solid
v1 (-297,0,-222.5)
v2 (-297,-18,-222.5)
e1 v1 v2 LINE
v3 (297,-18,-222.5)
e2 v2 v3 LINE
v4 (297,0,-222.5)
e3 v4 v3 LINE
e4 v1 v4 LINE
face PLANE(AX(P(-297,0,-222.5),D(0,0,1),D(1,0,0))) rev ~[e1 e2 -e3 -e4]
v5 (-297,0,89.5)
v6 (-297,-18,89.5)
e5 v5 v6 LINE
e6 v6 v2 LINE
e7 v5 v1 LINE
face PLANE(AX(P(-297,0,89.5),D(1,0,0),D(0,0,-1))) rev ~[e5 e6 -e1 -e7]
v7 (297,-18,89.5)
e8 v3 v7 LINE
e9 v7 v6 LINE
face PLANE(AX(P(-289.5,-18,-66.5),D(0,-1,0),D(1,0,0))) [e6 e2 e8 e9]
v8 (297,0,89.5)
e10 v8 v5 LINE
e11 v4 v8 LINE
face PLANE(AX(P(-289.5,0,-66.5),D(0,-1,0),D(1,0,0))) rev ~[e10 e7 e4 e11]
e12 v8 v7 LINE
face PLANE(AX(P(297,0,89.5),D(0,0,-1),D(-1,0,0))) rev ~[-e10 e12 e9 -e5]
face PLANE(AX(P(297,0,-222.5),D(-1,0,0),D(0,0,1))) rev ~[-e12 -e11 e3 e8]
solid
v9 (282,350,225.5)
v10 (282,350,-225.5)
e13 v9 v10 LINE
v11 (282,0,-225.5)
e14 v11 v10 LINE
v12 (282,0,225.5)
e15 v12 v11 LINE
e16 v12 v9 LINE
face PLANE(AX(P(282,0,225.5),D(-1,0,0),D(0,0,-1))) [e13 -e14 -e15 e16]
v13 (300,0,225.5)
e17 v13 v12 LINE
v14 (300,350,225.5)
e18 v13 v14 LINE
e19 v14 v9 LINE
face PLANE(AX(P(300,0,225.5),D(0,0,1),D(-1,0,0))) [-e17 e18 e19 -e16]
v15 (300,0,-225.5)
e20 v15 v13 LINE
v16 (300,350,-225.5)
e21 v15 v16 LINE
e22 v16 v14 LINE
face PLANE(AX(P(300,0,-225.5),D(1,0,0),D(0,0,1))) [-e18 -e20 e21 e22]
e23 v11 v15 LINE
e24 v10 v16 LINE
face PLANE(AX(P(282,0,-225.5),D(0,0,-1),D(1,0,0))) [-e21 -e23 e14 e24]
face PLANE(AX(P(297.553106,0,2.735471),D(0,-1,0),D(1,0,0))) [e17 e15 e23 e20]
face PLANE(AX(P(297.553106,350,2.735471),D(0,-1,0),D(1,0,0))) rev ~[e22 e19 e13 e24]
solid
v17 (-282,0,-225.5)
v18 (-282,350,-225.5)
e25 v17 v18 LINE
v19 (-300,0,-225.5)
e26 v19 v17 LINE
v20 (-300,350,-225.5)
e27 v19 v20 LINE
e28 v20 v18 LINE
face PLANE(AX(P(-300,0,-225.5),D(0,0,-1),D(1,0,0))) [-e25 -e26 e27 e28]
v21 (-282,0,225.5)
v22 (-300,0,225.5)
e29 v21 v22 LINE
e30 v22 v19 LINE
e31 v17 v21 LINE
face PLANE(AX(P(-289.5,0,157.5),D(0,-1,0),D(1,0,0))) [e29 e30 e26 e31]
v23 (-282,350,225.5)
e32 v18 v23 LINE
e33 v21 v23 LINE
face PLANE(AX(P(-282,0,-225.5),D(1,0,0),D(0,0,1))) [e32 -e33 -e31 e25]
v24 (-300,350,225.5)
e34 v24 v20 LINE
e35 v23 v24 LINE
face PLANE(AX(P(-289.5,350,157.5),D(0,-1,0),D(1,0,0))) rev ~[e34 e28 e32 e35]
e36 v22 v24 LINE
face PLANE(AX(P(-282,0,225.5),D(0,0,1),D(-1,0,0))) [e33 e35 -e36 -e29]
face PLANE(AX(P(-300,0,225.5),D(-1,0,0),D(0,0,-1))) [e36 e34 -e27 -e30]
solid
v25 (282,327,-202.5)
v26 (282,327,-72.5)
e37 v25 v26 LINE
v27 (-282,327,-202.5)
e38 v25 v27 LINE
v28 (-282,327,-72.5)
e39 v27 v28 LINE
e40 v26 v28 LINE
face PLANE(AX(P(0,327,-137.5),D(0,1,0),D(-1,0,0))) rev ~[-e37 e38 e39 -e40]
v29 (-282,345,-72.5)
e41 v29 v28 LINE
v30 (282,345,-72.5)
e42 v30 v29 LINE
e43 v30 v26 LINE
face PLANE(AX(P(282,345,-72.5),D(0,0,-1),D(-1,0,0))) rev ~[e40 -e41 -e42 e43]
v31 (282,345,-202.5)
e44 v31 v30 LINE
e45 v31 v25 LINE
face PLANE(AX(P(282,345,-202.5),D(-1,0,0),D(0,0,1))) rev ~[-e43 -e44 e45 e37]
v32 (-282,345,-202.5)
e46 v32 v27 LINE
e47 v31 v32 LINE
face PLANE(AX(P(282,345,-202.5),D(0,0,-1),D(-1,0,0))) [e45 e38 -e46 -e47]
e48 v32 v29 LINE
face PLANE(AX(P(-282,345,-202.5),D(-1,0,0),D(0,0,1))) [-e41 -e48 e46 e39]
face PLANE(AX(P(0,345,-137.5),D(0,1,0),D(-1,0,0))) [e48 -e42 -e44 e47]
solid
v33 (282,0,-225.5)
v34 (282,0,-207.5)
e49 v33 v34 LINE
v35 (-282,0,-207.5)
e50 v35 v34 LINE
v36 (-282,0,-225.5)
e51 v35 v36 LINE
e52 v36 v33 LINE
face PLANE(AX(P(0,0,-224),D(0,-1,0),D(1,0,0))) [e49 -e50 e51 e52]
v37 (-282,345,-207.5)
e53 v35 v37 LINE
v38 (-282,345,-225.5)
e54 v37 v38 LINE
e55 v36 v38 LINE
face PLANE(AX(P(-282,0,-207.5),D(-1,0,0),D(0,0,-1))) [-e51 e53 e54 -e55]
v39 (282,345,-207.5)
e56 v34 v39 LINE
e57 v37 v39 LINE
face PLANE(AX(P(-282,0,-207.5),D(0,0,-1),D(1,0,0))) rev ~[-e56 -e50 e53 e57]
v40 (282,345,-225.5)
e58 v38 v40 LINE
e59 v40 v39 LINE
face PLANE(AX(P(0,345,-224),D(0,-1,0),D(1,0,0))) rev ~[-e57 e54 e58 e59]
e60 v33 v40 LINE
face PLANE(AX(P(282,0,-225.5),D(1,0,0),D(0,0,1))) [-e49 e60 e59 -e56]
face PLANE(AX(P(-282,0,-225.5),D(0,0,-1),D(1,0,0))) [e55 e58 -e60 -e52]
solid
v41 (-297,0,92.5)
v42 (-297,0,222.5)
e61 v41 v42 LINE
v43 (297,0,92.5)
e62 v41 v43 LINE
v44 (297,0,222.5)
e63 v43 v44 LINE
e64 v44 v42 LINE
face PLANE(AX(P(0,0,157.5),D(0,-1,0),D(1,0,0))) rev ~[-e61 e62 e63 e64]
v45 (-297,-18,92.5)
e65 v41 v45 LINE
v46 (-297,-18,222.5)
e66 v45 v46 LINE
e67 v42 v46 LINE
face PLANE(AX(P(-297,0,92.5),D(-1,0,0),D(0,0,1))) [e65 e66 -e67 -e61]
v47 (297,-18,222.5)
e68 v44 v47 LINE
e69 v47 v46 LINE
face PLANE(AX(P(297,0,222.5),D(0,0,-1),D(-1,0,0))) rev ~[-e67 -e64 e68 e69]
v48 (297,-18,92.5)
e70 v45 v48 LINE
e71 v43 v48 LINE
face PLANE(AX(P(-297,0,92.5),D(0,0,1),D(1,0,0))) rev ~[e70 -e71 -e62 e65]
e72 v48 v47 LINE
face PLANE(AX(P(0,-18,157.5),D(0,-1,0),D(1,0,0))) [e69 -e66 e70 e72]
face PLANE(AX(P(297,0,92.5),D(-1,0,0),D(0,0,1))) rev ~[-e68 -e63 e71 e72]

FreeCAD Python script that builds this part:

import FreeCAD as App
import Part
import Sketcher

V = App.Vector
Q = App.Units.Quantity

doc = App.newDocument("Part")
body = doc.addObject("PartDesign::Body", "Body")

# Sketch on XZ plane
sketch1 = body.newObject("Sketcher::SketchObject", "Sketch")
sketch1.AttachmentSupport = (doc.getObject("XZ_Plane"), [""])
sketch1.MapMode = "FlatFace"
sketch1.addGeometry(Part.LineSegment(V(-282, 226, 0), V(-300, 226, 0)), False)
sketch1.addGeometry(Part.LineSegment(V(-300, 226, 0), V(-300, -226, 0)), False)
sketch1.addGeometry(Part.LineSegment(V(-300, -226, 0), V(-282, -226, 0)), False)
sketch1.addGeometry(Part.LineSegment(V(-282, -226, 0), V(-282, 226, 0)), False)
sketch1.addConstraint(Sketcher.Constraint("Coincident", 0, 2, 1, 1))
sketch1.addConstraint(Sketcher.Constraint("Coincident", 1, 2, 2, 1))
sketch1.addConstraint(Sketcher.Constraint("Coincident", 2, 2, 3, 1))
sketch1.addConstraint(Sketcher.Constraint("Coincident", 3, 2, 0, 1))
sketch1.addConstraint(Sketcher.Constraint("Horizontal", 0))
sketch1.addConstraint(Sketcher.Constraint("Vertical", 1))
sketch1.addConstraint(Sketcher.Constraint("Horizontal", 2))
sketch1.addConstraint(Sketcher.Constraint("Vertical", 3))
sketch1.addConstraint(Sketcher.Constraint("DistanceX", 0, 2, 0, 1, Q("18 mm")))
sketch1.addConstraint(Sketcher.Constraint("DistanceY", 1, 2, 1, 1, Q("451 mm")))
sketch1.addConstraint(Sketcher.Constraint("DistanceX", 0, 2, -1, 1, Q("300 mm")))
sketch1.addConstraint(Sketcher.Constraint("DistanceY", -1, 1, 0, 2, Q("225.5 mm")))
pad1 = body.newObject("PartDesign::Pad", "Pad")
pad1.Profile = sketch1
pad1.Length = 350
pad1.Reversed = True
body2 = doc.addObject("PartDesign::Body", "Body001")

# Sketch on XZ plane
sketch2 = body2.newObject("Sketcher::SketchObject", "Sketch001")
sketch2.AttachmentSupport = (doc.getObject("XZ_Plane001"), [""])
sketch2.MapMode = "FlatFace"
sketch2.addGeometry(Part.LineSegment(V(300, -226, 0), V(300, 226, 0)), False)
sketch2.addGeometry(Part.LineSegment(V(300, 226, 0), V(282, 226, 0)), False)
sketch2.addGeometry(Part.LineSegment(V(282, 226, 0), V(282, -226, 0)), False)
sketch2.addGeometry(Part.LineSegment(V(282, -226, 0), V(300, -226, 0)), False)
sketch2.addConstraint(Sketcher.Constraint("Coincident", 0, 2, 1, 1))
sketch2.addConstraint(Sketcher.Constraint("Coincident", 1, 2, 2, 1))
sketch2.addConstraint(Sketcher.Constraint("Coincident", 2, 2, 3, 1))
sketch2.addConstraint(Sketcher.Constraint("Coincident", 3, 2, 0, 1))
sketch2.addConstraint(Sketcher.Constraint("Vertical", 0))
sketch2.addConstraint(Sketcher.Constraint("Horizontal", 1))
sketch2.addConstraint(Sketcher.Constraint("Vertical", 2))
sketch2.addConstraint(Sketcher.Constraint("Horizontal", 3))
sketch2.addConstraint(Sketcher.Constraint("DistanceX", 1, 2, 1, 1, Q("18 mm")))
sketch2.addConstraint(Sketcher.Constraint("DistanceY", 0, 1, 0, 2, Q("451 mm")))
sketch2.addConstraint(Sketcher.Constraint("DistanceX", -1, 1, 0, 2, Q("300 mm")))
sketch2.addConstraint(Sketcher.Constraint("DistanceY", -1, 1, 0, 2, Q("225.5 mm")))
pad2 = body2.newObject("PartDesign::Pad", "Pad001")
pad2.Profile = sketch2
pad2.Length = 350
pad2.Reversed = True
body3 = doc.addObject("PartDesign::Body", "Body002")

# Sketch on XZ plane
sketch3 = body3.newObject("Sketcher::SketchObject", "Sketch002")
sketch3.AttachmentSupport = (doc.getObject("XZ_Plane002"), [""])
sketch3.MapMode = "FlatFace"
sketch3.addGeometry(Part.LineSegment(V(-282, -226, 0), V(282, -226, 0)), False)
sketch3.addGeometry(Part.LineSegment(V(282, -226, 0), V(282, -208, 0)), False)
sketch3.addGeometry(Part.LineSegment(V(282, -208, 0), V(-282, -208, 0)), False)
sketch3.addGeometry(Part.LineSegment(V(-282, -208, 0), V(-282, -226, 0)), False)
sketch3.addConstraint(Sketcher.Constraint("Coincident", 0, 2, 1, 1))
sketch3.addConstraint(Sketcher.Constraint("Coincident", 1, 2, 2, 1))
sketch3.addConstraint(Sketcher.Constraint("Coincident", 2, 2, 3, 1))
sketch3.addConstraint(Sketcher.Constraint("Coincident", 3, 2, 0, 1))
sketch3.addConstraint(Sketcher.Constraint("Horizontal", 0))
sketch3.addConstraint(Sketcher.Constraint("Vertical", 1))
sketch3.addConstraint(Sketcher.Constraint("Horizontal", 2))
sketch3.addConstraint(Sketcher.Constraint("Vertical", 3))
sketch3.addConstraint(Sketcher.Constraint("DistanceX", 0, 1, 0, 2, Q("564 mm")))
sketch3.addConstraint(Sketcher.Constraint("DistanceY", 1, 1, 1, 2, Q("18 mm")))
sketch3.addConstraint(Sketcher.Constraint("DistanceX", -1, 1, 0, 2, Q("282 mm")))
sketch3.addConstraint(Sketcher.Constraint("DistanceY", 0, 2, -1, 1, Q("225.5 mm")))
pad3 = body3.newObject("PartDesign::Pad", "Pad002")
pad3.Profile = sketch3
pad3.Length = 345
pad3.Reversed = True
body4 = doc.addObject("PartDesign::Body", "Body003")

# Sketch on XZ plane
sketch4 = body4.newObject("Sketcher::SketchObject", "Sketch003")
sketch4.AttachmentSupport = (doc.getObject("XZ_Plane003"), [""])
sketch4.MapMode = "FlatFace"
sketch4.AttachmentOffset = App.Placement(V(0, 0, -345), App.Rotation())
sketch4.addGeometry(Part.LineSegment(V(282, -72, 0), V(282, -202, 0)), False)
sketch4.addGeometry(Part.LineSegment(V(282, -202, 0), V(-282, -202, 0)), False)
sketch4.addGeometry(Part.LineSegment(V(-282, -202, 0), V(-282, -72, 0)), False)
sketch4.addGeometry(Part.LineSegment(V(-282, -72, 0), V(282, -72, 0)), False)
sketch4.addConstraint(Sketcher.Constraint("Coincident", 0, 2, 1, 1))
sketch4.addConstraint(Sketcher.Constraint("Coincident", 1, 2, 2, 1))
sketch4.addConstraint(Sketcher.Constraint("Coincident", 2, 2, 3, 1))
sketch4.addConstraint(Sketcher.Constraint("Coincident", 3, 2, 0, 1))
sketch4.addConstraint(Sketcher.Constraint("Vertical", 0))
sketch4.addConstraint(Sketcher.Constraint("Horizontal", 1))
sketch4.addConstraint(Sketcher.Constraint("Vertical", 2))
sketch4.addConstraint(Sketcher.Constraint("Horizontal", 3))
sketch4.addConstraint(Sketcher.Constraint("DistanceX", 1, 2, 1, 1, Q("564 mm")))
sketch4.addConstraint(Sketcher.Constraint("DistanceY", 0, 2, 0, 1, Q("130 mm")))
sketch4.addConstraint(Sketcher.Constraint("DistanceX", -1, 1, 0, 2, Q("282 mm")))
sketch4.addConstraint(Sketcher.Constraint("DistanceY", 0, 2, -1, 1, Q("202.5 mm")))
pad4 = body4.newObject("PartDesign::Pad", "Pad003")
pad4.Profile = sketch4
pad4.Length = 18
body5 = doc.addObject("PartDesign::Body", "Body004")

# Sketch on XZ plane
sketch5 = body5.newObject("Sketcher::SketchObject", "Sketch004")
sketch5.AttachmentSupport = (doc.getObject("XZ_Plane004"), [""])
sketch5.MapMode = "FlatFace"
sketch5.addGeometry(Part.LineSegment(V(-297, -222, 0), V(297, -222, 0)), False)
sketch5.addGeometry(Part.LineSegment(V(297, -222, 0), V(297, 90, 0)), False)
sketch5.addGeometry(Part.LineSegment(V(297, 90, 0), V(-297, 90, 0)), False)
sketch5.addGeometry(Part.LineSegment(V(-297, 90, 0), V(-297, -222, 0)), False)
sketch5.addConstraint(Sketcher.Constraint("Coincident", 0, 2, 1, 1))
sketch5.addConstraint(Sketcher.Constraint("Coincident", 1, 2, 2, 1))
sketch5.addConstraint(Sketcher.Constraint("Coincident", 2, 2, 3, 1))
sketch5.addConstraint(Sketcher.Constraint("Coincident", 3, 2, 0, 1))
sketch5.addConstraint(Sketcher.Constraint("Horizontal", 0))
sketch5.addConstraint(Sketcher.Constraint("Vertical", 1))
sketch5.addConstraint(Sketcher.Constraint("Horizontal", 2))
sketch5.addConstraint(Sketcher.Constraint("Vertical", 3))
sketch5.addConstraint(Sketcher.Constraint("DistanceX", 0, 1, 0, 2, Q("594 mm")))
sketch5.addConstraint(Sketcher.Constraint("DistanceY", 1, 1, 1, 2, Q("312 mm")))
sketch5.addConstraint(Sketcher.Constraint("DistanceX", -1, 1, 0, 2, Q("297 mm")))
sketch5.addConstraint(Sketcher.Constraint("DistanceY", 0, 2, -1, 1, Q("222.5 mm")))
pad5 = body5.newObject("PartDesign::Pad", "Pad004")
pad5.Profile = sketch5
pad5.Length = 18
body6 = doc.addObject("PartDesign::Body", "Body005")

# Sketch on XZ plane
sketch6 = body6.newObject("Sketcher::SketchObject", "Sketch005")
sketch6.AttachmentSupport = (doc.getObject("XZ_Plane005"), [""])
sketch6.MapMode = "FlatFace"
sketch6.addGeometry(Part.LineSegment(V(-297, 222, 0), V(-297, 92, 0)), False)
sketch6.addGeometry(Part.LineSegment(V(-297, 92, 0), V(297, 92, 0)), False)
sketch6.addGeometry(Part.LineSegment(V(297, 92, 0), V(297, 222, 0)), False)
sketch6.addGeometry(Part.LineSegment(V(297, 222, 0), V(-297, 222, 0)), False)
sketch6.addConstraint(Sketcher.Constraint("Coincident", 0, 2, 1, 1))
sketch6.addConstraint(Sketcher.Constraint("Coincident", 1, 2, 2, 1))
sketch6.addConstraint(Sketcher.Constraint("Coincident", 2, 2, 3, 1))
sketch6.addConstraint(Sketcher.Constraint("Coincident", 3, 2, 0, 1))
sketch6.addConstraint(Sketcher.Constraint("Vertical", 0))
sketch6.addConstraint(Sketcher.Constraint("Horizontal", 1))
sketch6.addConstraint(Sketcher.Constraint("Vertical", 2))
sketch6.addConstraint(Sketcher.Constraint("Horizontal", 3))
sketch6.addConstraint(Sketcher.Constraint("DistanceX", 1, 1, 1, 2, Q("594 mm")))
sketch6.addConstraint(Sketcher.Constraint("DistanceY", 0, 2, 0, 1, Q("130 mm")))
sketch6.addConstraint(Sketcher.Constraint("DistanceX", 0, 2, -1, 1, Q("297 mm")))
sketch6.addConstraint(Sketcher.Constraint("DistanceY", -1, 1, 0, 2, Q("92.5 mm")))
pad6 = body6.newObject("PartDesign::Pad", "Pad005")
pad6.Profile = sketch6
pad6.Length = 18

doc.recompute()
